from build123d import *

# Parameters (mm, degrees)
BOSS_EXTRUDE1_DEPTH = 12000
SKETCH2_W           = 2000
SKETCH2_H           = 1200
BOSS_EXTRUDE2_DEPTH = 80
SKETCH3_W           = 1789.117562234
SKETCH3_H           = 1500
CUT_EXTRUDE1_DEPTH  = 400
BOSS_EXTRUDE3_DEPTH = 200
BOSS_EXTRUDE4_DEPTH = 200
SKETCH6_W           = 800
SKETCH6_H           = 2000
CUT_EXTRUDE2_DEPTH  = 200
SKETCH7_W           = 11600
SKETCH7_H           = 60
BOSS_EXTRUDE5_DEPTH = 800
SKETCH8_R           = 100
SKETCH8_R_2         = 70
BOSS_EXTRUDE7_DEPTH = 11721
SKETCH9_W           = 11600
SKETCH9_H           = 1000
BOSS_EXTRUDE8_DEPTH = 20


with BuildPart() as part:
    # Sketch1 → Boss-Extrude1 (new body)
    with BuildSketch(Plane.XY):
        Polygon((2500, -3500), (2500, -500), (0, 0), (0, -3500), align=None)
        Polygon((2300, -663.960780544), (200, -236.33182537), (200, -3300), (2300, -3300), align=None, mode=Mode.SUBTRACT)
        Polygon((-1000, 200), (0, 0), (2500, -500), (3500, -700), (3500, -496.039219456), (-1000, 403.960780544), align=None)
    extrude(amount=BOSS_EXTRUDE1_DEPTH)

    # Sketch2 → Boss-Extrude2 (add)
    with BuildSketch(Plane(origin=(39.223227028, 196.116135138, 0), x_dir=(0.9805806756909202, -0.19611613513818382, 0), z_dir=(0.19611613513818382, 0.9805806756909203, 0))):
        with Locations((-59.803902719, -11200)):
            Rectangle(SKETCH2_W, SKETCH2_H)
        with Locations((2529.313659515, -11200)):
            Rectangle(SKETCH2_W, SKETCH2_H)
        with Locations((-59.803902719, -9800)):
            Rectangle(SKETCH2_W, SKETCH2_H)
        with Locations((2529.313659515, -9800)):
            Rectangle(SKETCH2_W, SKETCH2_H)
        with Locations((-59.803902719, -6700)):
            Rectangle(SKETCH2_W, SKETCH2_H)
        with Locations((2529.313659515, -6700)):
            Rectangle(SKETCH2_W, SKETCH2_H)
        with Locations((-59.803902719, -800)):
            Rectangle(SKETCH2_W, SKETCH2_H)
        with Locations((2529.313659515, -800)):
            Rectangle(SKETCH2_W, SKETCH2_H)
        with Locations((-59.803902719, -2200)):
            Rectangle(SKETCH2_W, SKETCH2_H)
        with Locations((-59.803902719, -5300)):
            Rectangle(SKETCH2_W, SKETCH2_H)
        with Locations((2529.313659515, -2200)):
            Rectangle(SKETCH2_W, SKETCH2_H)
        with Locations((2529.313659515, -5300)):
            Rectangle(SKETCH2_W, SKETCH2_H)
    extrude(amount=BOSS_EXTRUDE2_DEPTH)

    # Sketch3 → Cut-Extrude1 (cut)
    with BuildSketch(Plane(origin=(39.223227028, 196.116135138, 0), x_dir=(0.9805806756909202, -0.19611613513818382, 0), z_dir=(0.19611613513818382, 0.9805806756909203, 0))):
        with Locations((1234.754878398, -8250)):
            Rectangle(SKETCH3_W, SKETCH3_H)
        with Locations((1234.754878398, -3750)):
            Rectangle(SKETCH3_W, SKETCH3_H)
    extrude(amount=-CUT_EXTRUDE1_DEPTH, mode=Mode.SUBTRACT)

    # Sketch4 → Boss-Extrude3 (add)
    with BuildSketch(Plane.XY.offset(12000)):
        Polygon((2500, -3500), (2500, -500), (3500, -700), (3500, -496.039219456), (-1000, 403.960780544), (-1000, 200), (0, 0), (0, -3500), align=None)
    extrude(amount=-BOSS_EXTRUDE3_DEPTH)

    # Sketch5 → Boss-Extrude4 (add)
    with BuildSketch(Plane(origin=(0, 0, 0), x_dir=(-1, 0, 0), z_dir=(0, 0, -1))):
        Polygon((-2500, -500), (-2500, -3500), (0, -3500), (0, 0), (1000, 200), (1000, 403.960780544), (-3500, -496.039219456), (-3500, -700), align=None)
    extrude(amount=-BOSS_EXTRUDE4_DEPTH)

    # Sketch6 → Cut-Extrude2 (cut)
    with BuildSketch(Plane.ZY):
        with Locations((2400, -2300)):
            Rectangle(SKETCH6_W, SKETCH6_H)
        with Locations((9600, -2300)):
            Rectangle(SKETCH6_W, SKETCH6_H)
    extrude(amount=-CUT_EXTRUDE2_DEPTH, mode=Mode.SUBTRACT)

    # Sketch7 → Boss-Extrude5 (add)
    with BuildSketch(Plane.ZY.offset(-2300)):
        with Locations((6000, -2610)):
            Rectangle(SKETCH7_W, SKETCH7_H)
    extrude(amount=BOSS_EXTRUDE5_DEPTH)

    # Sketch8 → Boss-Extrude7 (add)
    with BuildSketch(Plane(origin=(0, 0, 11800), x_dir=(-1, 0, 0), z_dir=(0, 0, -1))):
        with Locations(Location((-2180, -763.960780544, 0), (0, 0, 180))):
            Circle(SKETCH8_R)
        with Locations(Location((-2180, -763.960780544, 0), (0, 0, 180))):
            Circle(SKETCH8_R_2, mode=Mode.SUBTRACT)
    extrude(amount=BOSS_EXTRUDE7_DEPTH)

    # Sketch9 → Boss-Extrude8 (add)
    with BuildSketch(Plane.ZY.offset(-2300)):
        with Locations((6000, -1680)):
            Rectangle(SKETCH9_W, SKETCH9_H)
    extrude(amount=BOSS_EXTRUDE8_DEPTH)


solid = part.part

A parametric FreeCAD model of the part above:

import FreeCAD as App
import Part
import Sketcher


def add_polygon(sketch, points):
    """Adds a closed chain of lines whose ends are joined by coincident constraints."""
    first, n = sketch.GeometryCount, len(points)
    for a, b in zip(points, points[1:] + points[:1]):
        sketch.addGeometry(Part.LineSegment(App.Vector(*a, 0), App.Vector(*b, 0)), False)
    for i in range(n):
        sketch.addConstraint(Sketcher.Constraint("Coincident", first + i, 2, first + (i + 1) % n, 1))

doc = App.newDocument("Part")
params = doc.addObject("Spreadsheet::Sheet", "Params")
for row, (alias, value) in enumerate([
    ("sketch1_width", "2500 mm"),
    ("sketch1_width2", "2100 mm"),
    ("sketch1_height", "3000 mm"),
    ("sketch1_height2", "3500 mm"),
    ("pad1_length", "12000 mm"),
    ("sketch2_width", "2000.000001 mm"),
    ("sketch2_height", "1200.000001 mm"),
    ("pad2_length", "80 mm"),
    ("sketch3_height", "1500.000002 mm"),
    ("pocket1_length", "400 mm"),
    ("sketch4_width", "2500 mm"),
    ("sketch4_height", "3000 mm"),
    ("sketch4_height2", "3500 mm"),
    ("pad3_length", "200 mm"),
    ("sketch5_width", "2500 mm"),
    ("sketch5_height", "3000 mm"),
    ("sketch5_height2", "3500 mm"),
    ("pad4_length", "200 mm"),
    ("sketch6_width", "2000 mm"),
    ("sketch6_height", "800 mm"),
    ("pocket2_length", "200 mm"),
    ("sketch7_width", "60 mm"),
    ("sketch7_height", "11600 mm"),
    ("pad5_length", "800 mm"),
    ("sketch8_diameter", "200 mm"),
    ("sketch8_diameter2", "140 mm"),
    ("pad6_length", "11721 mm"),
    ("sketch9_width", "1000 mm"),
    ("sketch9_height", "11600 mm"),
    ("pad7_length", "20 mm"),
], start=1):
    params.set(f"A{row}", alias)
    params.set(f"B{row}", "=" + value)
    params.setAlias(f"B{row}", alias)

body = doc.addObject("PartDesign::Body", "Body")

# Sketch on XY plane
sketch1 = body.newObject("Sketcher::SketchObject", "Sketch")
sketch1.AttachmentSupport = (doc.getObject("XY_Plane"), [""])
sketch1.MapMode = "FlatFace"
add_polygon(sketch1, [(2500, -3500), (2500, -500), (3500, -700), (3500, -496), (-1000, 404), (-1000, 200), (0, 0), (0, -3500)])  # lines 0-7
add_polygon(sketch1, [(200, -236), (2300, -664), (2300, -3300), (200, -3300)])  # lines 8-11
sketch1.addConstraint(Sketcher.Constraint("Vertical", 0))
sketch1.addConstraint(Sketcher.Constraint("Vertical", 2))
sketch1.addConstraint(Sketcher.Constraint("Vertical", 4))
sketch1.addConstraint(Sketcher.Constraint("Vertical", 6))
sketch1.addConstraint(Sketcher.Constraint("Horizontal", 7))
sketch1.addConstraint(Sketcher.Constraint("Vertical", 9))
sketch1.addConstraint(Sketcher.Constraint("Horizontal", 10))
sketch1.addConstraint(Sketcher.Constraint("Vertical", 11))
sketch1.addConstraint(Sketcher.Constraint("Coincident", 5, 2, -1, 1))
sketch1.addConstraint(Sketcher.Constraint("Parallel", 1, 3))
sketch1.addConstraint(Sketcher.Constraint("Parallel", 3, 5))
sketch1.addConstraint(Sketcher.Constraint("Equal", 2, 4))
sketch1.addConstraint(Sketcher.Constraint("Equal", 1, 5))
sketch1.addConstraint(Sketcher.Constraint("DistanceX", 7, 1, 7, 2, 2500.0))
sketch1.addConstraint(Sketcher.Constraint("DistanceX", 10, 2, 10, 1, 2100.0))
sketch1.addConstraint(Sketcher.Constraint("DistanceY", 0, 1, 0, 2, 3000.0))
sketch1.addConstraint(Sketcher.Constraint("DistanceY", 6, 2, 6, 1, 3500.0))
sketch1.addConstraint(Sketcher.Constraint("DistanceX", -1, 1, 1, 2, 3500.0))
sketch1.addConstraint(Sketcher.Constraint("DistanceX", -1, 1, 8, 2, 2300.0))
sketch1.addConstraint(Sketcher.Constraint("DistanceY", 9, 2, -1, 1, 3300.0))
sketch1.addConstraint(Sketcher.Constraint("DistanceY", 2, 1, 2, 2, 203.960781))
sketch1.addConstraint(Sketcher.Constraint("DistanceY", 9, 2, 9, 1, 2636.039219))
sketch1.addConstraint(Sketcher.Constraint("DistanceY", 11, 1, 11, 2, 3063.668175))
sketch1.setExpression("Constraints[25]", "Params.sketch1_width")
sketch1.setExpression("Constraints[26]", "Params.sketch1_width2")
sketch1.setExpression("Constraints[27]", "Params.sketch1_height")
sketch1.setExpression("Constraints[28]", "Params.sketch1_height2")
pad1 = body.newObject("PartDesign::Pad", "Pad")
pad1.Profile = sketch1
pad1.setExpression("Length", "Params.pad1_length")

# Sketch on an angled plane
sketch2 = body.newObject("Sketcher::SketchObject", "Sketch001")
sketch2.Placement = App.Placement(App.Vector(39.223227, 196.116135, 0), App.Rotation(App.Vector(0.980580676, -0.196116135, 0), App.Vector(0, 0, -1.000000001), App.Vector(0.196116135, 0.980580676, 0), "ZXY"))
add_polygon(sketch2, [(-1060, -10600), (-1060, -11800), (940, -11800), (940, -10600)])  # lines 0-3
add_polygon(sketch2, [(1529, -10600), (1529, -11800), (3529, -11800), (3529, -10600)])  # lines 4-7
add_polygon(sketch2, [(-1060, -9200), (-1060, -10400), (940, -10400), (940, -9200)])  # lines 8-11
add_polygon(sketch2, [(1529, -9200), (1529, -10400), (3529, -10400), (3529, -9200)])  # lines 12-15
add_polygon(sketch2, [(-1060, -6100), (-1060, -7300), (940, -7300), (940, -6100)])  # lines 16-19
add_polygon(sketch2, [(1529, -6100), (1529, -7300), (3529, -7300), (3529, -6100)])  # lines 20-23
add_polygon(sketch2, [(-1060, -200), (-1060, -1400), (940, -1400), (940, -200)])  # lines 24-27
add_polygon(sketch2, [(1529, -200), (1529, -1400), (3529, -1400), (3529, -200)])  # lines 28-31
add_polygon(sketch2, [(-1060, -1600), (-1060, -2800), (940, -2800), (940, -1600)])  # lines 32-35
add_polygon(sketch2, [(-1060, -4700), (-1060, -5900), (940, -5900), (940, -4700)])  # lines 36-39
add_polygon(sketch2, [(1529, -1600), (1529, -2800), (3529, -2800), (3529, -1600)])  # lines 40-43
add_polygon(sketch2, [(1529, -4700), (1529, -5900), (3529, -5900), (3529, -4700)])  # lines 44-47
sketch2.addConstraint(Sketcher.Constraint("Vertical", 0))
sketch2.addConstraint(Sketcher.Constraint("Horizontal", 1))
sketch2.addConstraint(Sketcher.Constraint("Vertical", 2))
sketch2.addConstraint(Sketcher.Constraint("Horizontal", 3))
sketch2.addConstraint(Sketcher.Constraint("Vertical", 4))
sketch2.addConstraint(Sketcher.Constraint("Horizontal", 5))
sketch2.addConstraint(Sketcher.Constraint("Vertical", 6))
sketch2.addConstraint(Sketcher.Constraint("Horizontal", 7))
sketch2.addConstraint(Sketcher.Constraint("Vertical", 8))
sketch2.addConstraint(Sketcher.Constraint("Horizontal", 9))
sketch2.addConstraint(Sketcher.Constraint("Vertical", 10))
sketch2.addConstraint(Sketcher.Constraint("Horizontal", 11))
sketch2.addConstraint(Sketcher.Constraint("Vertical", 12))
sketch2.addConstraint(Sketcher.Constraint("Horizontal", 13))
sketch2.addConstraint(Sketcher.Constraint("Vertical", 14))
sketch2.addConstraint(Sketcher.Constraint("Horizontal", 15))
sketch2.addConstraint(Sketcher.Constraint("Vertical", 16))
sketch2.addConstraint(Sketcher.Constraint("Horizontal", 17))
sketch2.addConstraint(Sketcher.Constraint("Vertical", 18))
sketch2.addConstraint(Sketcher.Constraint("Horizontal", 19))
sketch2.addConstraint(Sketcher.Constraint("Vertical", 20))
sketch2.addConstraint(Sketcher.Constraint("Horizontal", 21))
sketch2.addConstraint(Sketcher.Constraint("Vertical", 22))
sketch2.addConstraint(Sketcher.Constraint("Horizontal", 23))
sketch2.addConstraint(Sketcher.Constraint("Vertical", 24))
sketch2.addConstraint(Sketcher.Constraint("Horizontal", 25))
sketch2.addConstraint(Sketcher.Constraint("Vertical", 26))
sketch2.addConstraint(Sketcher.Constraint("Horizontal", 27))
sketch2.addConstraint(Sketcher.Constraint("Vertical", 28))
sketch2.addConstraint(Sketcher.Constraint("Horizontal", 29))
sketch2.addConstraint(Sketcher.Constraint("Vertical", 30))
sketch2.addConstraint(Sketcher.Constraint("Horizontal", 31))
sketch2.addConstraint(Sketcher.Constraint("Vertical", 32))
sketch2.addConstraint(Sketcher.Constraint("Horizontal", 33))
sketch2.addConstraint(Sketcher.Constraint("Vertical", 34))
sketch2.addConstraint(Sketcher.Constraint("Horizontal", 35))
sketch2.addConstraint(Sketcher.Constraint("Vertical", 36))
sketch2.addConstraint(Sketcher.Constraint("Horizontal", 37))
sketch2.addConstraint(Sketcher.Constraint("Vertical", 38))
sketch2.addConstraint(Sketcher.Constraint("Horizontal", 39))
sketch2.addConstraint(Sketcher.Constraint("Vertical", 40))
sketch2.addConstraint(Sketcher.Constraint("Horizontal", 41))
sketch2.addConstraint(Sketcher.Constraint("Vertical", 42))
sketch2.addConstraint(Sketcher.Constraint("Horizontal", 43))
sketch2.addConstraint(Sketcher.Constraint("Vertical", 44))
sketch2.addConstraint(Sketcher.Constraint("Horizontal", 45))
sketch2.addConstraint(Sketcher.Constraint("Vertical", 46))
sketch2.addConstraint(Sketcher.Constraint("Horizontal", 47))
sketch2.addConstraint(Sketcher.Constraint("Horizontal", 1, 2, 4, 2))
sketch2.addConstraint(Sketcher.Constraint("Horizontal", 3, 2, 6, 2))
sketch2.addConstraint(Sketcher.Constraint("Horizontal", 9, 2, 12, 2))
sketch2.addConstraint(Sketcher.Constraint("Horizontal", 11, 2, 14, 2))
sketch2.addConstraint(Sketcher.Constraint("Horizontal", 17, 2, 20, 2))
sketch2.addConstraint(Sketcher.Constraint("Horizontal", 19, 2, 22, 2))
sketch2.addConstraint(Sketcher.Constraint("Horizontal", 25, 2, 28, 2))
sketch2.addConstraint(Sketcher.Constraint("Horizontal", 27, 2, 30, 2))
sketch2.addConstraint(Sketcher.Constraint("Horizontal", 33, 2, 40, 2))
sketch2.addConstraint(Sketcher.Constraint("Horizontal", 35, 2, 42, 2))
sketch2.addConstraint(Sketcher.Constraint("Horizontal", 37, 2, 44, 2))
sketch2.addConstraint(Sketcher.Constraint("Horizontal", 39, 2, 46, 2))
sketch2.addConstraint(Sketcher.Constraint("Vertical", 3, 2, 8, 2))
sketch2.addConstraint(Sketcher.Constraint("Vertical", 2, 2, 9, 2))
sketch2.addConstraint(Sketcher.Constraint("Vertical", 7, 2, 12, 2))
sketch2.addConstraint(Sketcher.Constraint("Vertical", 6, 2, 13, 2))
sketch2.addConstraint(Sketcher.Constraint("Vertical", 11, 2, 16, 2))
sketch2.addConstraint(Sketcher.Constraint("Vertical", 10, 2, 17, 2))
sketch2.addConstraint(Sketcher.Constraint("Vertical", 15, 2, 20, 2))
sketch2.addConstraint(Sketcher.Constraint("Vertical", 14, 2, 21, 2))
sketch2.addConstraint(Sketcher.Constraint("Vertical", 19, 2, 24, 2))
sketch2.addConstraint(Sketcher.Constraint("Vertical", 18, 2, 25, 2))
sketch2.addConstraint(Sketcher.Constraint("Vertical", 23, 2, 28, 2))
sketch2.addConstraint(Sketcher.Constraint("Vertical", 22, 2, 29, 2))
sketch2.addConstraint(Sketcher.Constraint("Vertical", 27, 2, 32, 2))
sketch2.addConstraint(Sketcher.Constraint("Vertical", 26, 2, 33, 2))
sketch2.addConstraint(Sketcher.Constraint("Vertical", 35, 2, 36, 2))
sketch2.addConstraint(Sketcher.Constraint("Vertical", 34, 2, 37, 2))
sketch2.addConstraint(Sketcher.Constraint("Vertical", 31, 2, 40, 2))
sketch2.addConstraint(Sketcher.Constraint("Vertical", 30, 2, 41, 2))
sketch2.addConstraint(Sketcher.Constraint("Vertical", 43, 2, 44, 2))
sketch2.addConstraint(Sketcher.Constraint("Vertical", 42, 2, 45, 2))
sketch2.addConstraint(Sketcher.Constraint("Equal", 3, 5))
sketch2.addConstraint(Sketcher.Constraint("Equal", 6, 8))
sketch2.addConstraint(Sketcher.Constraint("Equal", 14, 16))
sketch2.addConstraint(Sketcher.Constraint("Equal", 22, 24))
sketch2.addConstraint(Sketcher.Constraint("Equal", 30, 32))
sketch2.addConstraint(Sketcher.Constraint("Equal", 34, 36))
sketch2.addConstraint(Sketcher.Constraint("DistanceX", 1, 1, 1, 2, 2000.000001))
sketch2.addConstraint(Sketcher.Constraint("DistanceY", 0, 2, 0, 1, 1200.000001))
sketch2.addConstraint(Sketcher.Constraint("DistanceY", 24, 2, -1, 1, 1400.000002))
sketch2.addConstraint(Sketcher.Constraint("DistanceY", 34, 2, -1, 1, 1600.000002))
sketch2.addConstraint(Sketcher.Constraint("DistanceY", 3, 2, 8, 2, 200.0))
sketch2.addConstraint(Sketcher.Constraint("DistanceY", 19, 2, 36, 2, 200.0))
sketch2.addConstraint(Sketcher.Constraint("DistanceY", 2, 2, -1, 1, 10600.000012))
sketch2.addConstraint(Sketcher.Constraint("DistanceX", -1, 1, 4, 2, 1529.31366))
sketch2.addConstraint(Sketcher.Constraint("DistanceY", 16, 2, -1, 1, 7300.000008))
sketch2.addConstraint(Sketcher.Constraint("DistanceX", 0, 2, -1, 1, 1059.803903))
sketch2.setExpression("Constraints[134]", "Params.sketch2_width")
sketch2.setExpression("Constraints[135]", "Params.sketch2_height")
pad2 = body.newObject("PartDesign::Pad", "Pad001")
pad2.Profile = sketch2
pad2.setExpression("Length", "Params.pad2_length")

# Sketch on an angled plane
sketch3 = body.newObject("Sketcher::SketchObject", "Sketch002")
sketch3.Placement = App.Placement(App.Vector(39.223227, 196.116135, 0), App.Rotation(App.Vector(0.980580676, -0.196116135, 0), App.Vector(0, 0, -1.000000001), App.Vector(0.196116135, 0.980580676, 0), "ZXY"))
add_polygon(sketch3, [(340, -7500), (340, -9000), (2129, -9000), (2129, -7500)])  # lines 0-3
add_polygon(sketch3, [(340, -3000), (340, -4500), (2129, -4500), (2129, -3000)])  # lines 4-7
sketch3.addConstraint(Sketcher.Constraint("Vertical", 0))
sketch3.addConstraint(Sketcher.Constraint("Horizontal", 1))
sketch3.addConstraint(Sketcher.Constraint("Vertical", 2))
sketch3.addConstraint(Sketcher.Constraint("Horizontal", 3))
sketch3.addConstraint(Sketcher.Constraint("Vertical", 4))
sketch3.addConstraint(Sketcher.Constraint("Horizontal", 5))
sketch3.addConstraint(Sketcher.Constraint("Vertical", 6))
sketch3.addConstraint(Sketcher.Constraint("Horizontal", 7))
sketch3.addConstraint(Sketcher.Constraint("Vertical", 3, 2, 4, 2))
sketch3.addConstraint(Sketcher.Constraint("Vertical", 2, 2, 5, 2))
sketch3.addConstraint(Sketcher.Constraint("Equal", 2, 4))
sketch3.addConstraint(Sketcher.Constraint("DistanceY", 0, 2, 0, 1, 1500.000002))
sketch3.addConstraint(Sketcher.Constraint("DistanceX", 1, 1, 1, 2, 1789.117563))
sketch3.addConstraint(Sketcher.Constraint("DistanceY", 0, 2, -1, 1, 9000.00001))
sketch3.addConstraint(Sketcher.Constraint("DistanceX", -1, 1, 1, 2, 2129.313661))
sketch3.addConstraint(Sketcher.Constraint("DistanceY", 4, 2, -1, 1, 4500.000005))
sketch3.setExpression("Constraints[19]", "Params.sketch3_height")
pocket1 = body.newObject("PartDesign::Pocket", "Pocket")
pocket1.Profile = sketch3
pocket1.setExpression("Length", "Params.pocket1_length")

# Sketch on XY plane
sketch4 = body.newObject("Sketcher::SketchObject", "Sketch003")
sketch4.AttachmentSupport = (doc.getObject("XY_Plane"), [""])
sketch4.MapMode = "FlatFace"
sketch4.AttachmentOffset = App.Placement(App.Vector(0, 0, 12000), App.Rotation())
add_polygon(sketch4, [(2500, -3500), (2500, -500), (3500, -700), (3500, -496), (-1000, 404), (-1000, 200), (0, 0), (0, -3500)])  # lines 0-7
sketch4.addConstraint(Sketcher.Constraint("Vertical", 0))
sketch4.addConstraint(Sketcher.Constraint("Vertical", 2))
sketch4.addConstraint(Sketcher.Constraint("Vertical", 4))
sketch4.addConstraint(Sketcher.Constraint("Vertical", 6))
sketch4.addConstraint(Sketcher.Constraint("Horizontal", 7))
sketch4.addConstraint(Sketcher.Constraint("Coincident", 5, 2, -1, 1))
sketch4.addConstraint(Sketcher.Constraint("Parallel", 1, 3))
sketch4.addConstraint(Sketcher.Constraint("Parallel", 3, 5))
sketch4.addConstraint(Sketcher.Constraint("Equal", 2, 4))
sketch4.addConstraint(Sketcher.Constraint("Equal", 1, 5))
sketch4.addConstraint(Sketcher.Constraint("DistanceX", 7, 1, 7, 2, 2500.0))
sketch4.addConstraint(Sketcher.Constraint("DistanceY", 0, 1, 0, 2, 3000.0))
sketch4.addConstraint(Sketcher.Constraint("DistanceY", 6, 2, 6, 1, 3500.0))
sketch4.addConstraint(Sketcher.Constraint("DistanceX", -1, 1, 1, 2, 3500.0))
sketch4.addConstraint(Sketcher.Constraint("DistanceY", 2, 1, 2, 2, 203.960781))
sketch4.setExpression("Constraints[18]", "Params.sketch4_width")
sketch4.setExpression("Constraints[19]", "Params.sketch4_height")
sketch4.setExpression("Constraints[20]", "Params.sketch4_height2")
pad3 = body.newObject("PartDesign::Pad", "Pad002")
pad3.Profile = sketch4
pad3.setExpression("Length", "Params.pad3_length")
pad3.Reversed = True

# Sketch on XY plane
sketch5 = body.newObject("Sketcher::SketchObject", "Sketch004")
sketch5.AttachmentSupport = (doc.getObject("XY_Plane"), [""])
sketch5.MapMode = "FlatFace"
add_polygon(sketch5, [(2500, -500), (2500, -3500), (0, -3500), (0, 0), (-1000, 200), (-1000, 404), (3500, -496), (3500, -700)])  # lines 0-7
sketch5.addConstraint(Sketcher.Constraint("Vertical", 0))
sketch5.addConstraint(Sketcher.Constraint("Horizontal", 1))
sketch5.addConstraint(Sketcher.Constraint("Vertical", 2))
sketch5.addConstraint(Sketcher.Constraint("Vertical", 4))
sketch5.addConstraint(Sketcher.Constraint("Vertical", 6))
sketch5.addConstraint(Sketcher.Constraint("Coincident", 2, 2, -1, 1))
sketch5.addConstraint(Sketcher.Constraint("Parallel", 3, 5))
sketch5.addConstraint(Sketcher.Constraint("Parallel", 5, 7))
sketch5.addConstraint(Sketcher.Constraint("Equal", 4, 6))
sketch5.addConstraint(Sketcher.Constraint("Equal", 3, 7))
sketch5.addConstraint(Sketcher.Constraint("DistanceX", 1, 2, 1, 1, 2500.0))
sketch5.addConstraint(Sketcher.Constraint("DistanceY", 0, 2, 0, 1, 3000.0))
sketch5.addConstraint(Sketcher.Constraint("DistanceY", 2, 1, 2, 2, 3500.0))
sketch5.addConstraint(Sketcher.Constraint("DistanceX", 3, 2, -1, 1, 1000.0))
sketch5.addConstraint(Sketcher.Constraint("DistanceY", 4, 1, 4, 2, 203.960781))
sketch5.setExpression("Constraints[18]", "Params.sketch5_width")
sketch5.setExpression("Constraints[19]", "Params.sketch5_height")
sketch5.setExpression("Constraints[20]", "Params.sketch5_height2")
pad4 = body.newObject("PartDesign::Pad", "Pad003")
pad4.Profile = sketch5
pad4.setExpression("Length", "Params.pad4_length")

# Sketch on YZ plane
sketch6 = body.newObject("Sketcher::SketchObject", "Sketch005")
sketch6.AttachmentSupport = (doc.getObject("YZ_Plane"), [""])
sketch6.MapMode = "FlatFace"
add_polygon(sketch6, [(-1300, 2000), (-3300, 2000), (-3300, 2800), (-1300, 2800)])  # lines 0-3
add_polygon(sketch6, [(-1300, 9200), (-3300, 9200), (-3300, 10000), (-1300, 10000)])  # lines 4-7
sketch6.addConstraint(Sketcher.Constraint("Horizontal", 0))
sketch6.addConstraint(Sketcher.Constraint("Vertical", 1))
sketch6.addConstraint(Sketcher.Constraint("Horizontal", 2))
sketch6.addConstraint(Sketcher.Constraint("Vertical", 3))
sketch6.addConstraint(Sketcher.Constraint("Horizontal", 4))
sketch6.addConstraint(Sketcher.Constraint("Vertical", 5))
sketch6.addConstraint(Sketcher.Constraint("Horizontal", 6))
sketch6.addConstraint(Sketcher.Constraint("Vertical", 7))
sketch6.addConstraint(Sketcher.Constraint("Vertical", 1, 2, 4, 2))
sketch6.addConstraint(Sketcher.Constraint("Vertical", 3, 2, 6, 2))
sketch6.addConstraint(Sketcher.Constraint("Equal", 3, 5))
sketch6.addConstraint(Sketcher.Constraint("DistanceX", 0, 2, 0, 1, 2000.0))
sketch6.addConstraint(Sketcher.Constraint("DistanceY", 1, 1, 1, 2, 800.0))
sketch6.addConstraint(Sketcher.Constraint("DistanceX", 0, 2, -1, 1, 3300.0))
sketch6.addConstraint(Sketcher.Constraint("DistanceY", -1, 1, 0, 2, 2000.0))
sketch6.addConstraint(Sketcher.Constraint("DistanceY", -1, 1, 4, 2, 9200.0))
sketch6.setExpression("Constraints[19]", "Params.sketch6_width")
sketch6.setExpression("Constraints[20]", "Params.sketch6_height")
pocket2 = body.newObject("PartDesign::Pocket", "Pocket001")
pocket2.Profile = sketch6
pocket2.setExpression("Length", "Params.pocket2_length")
pocket2.Reversed = True

# Sketch on YZ plane
sketch7 = body.newObject("Sketcher::SketchObject", "Sketch006")
sketch7.AttachmentSupport = (doc.getObject("YZ_Plane"), [""])
sketch7.MapMode = "FlatFace"
sketch7.AttachmentOffset = App.Placement(App.Vector(0, 0, 2300), App.Rotation())
add_polygon(sketch7, [(-2580, 200), (-2640, 200), (-2640, 11800), (-2580, 11800)])  # lines 0-3
sketch7.addConstraint(Sketcher.Constraint("Horizontal", 0))
sketch7.addConstraint(Sketcher.Constraint("Vertical", 1))
sketch7.addConstraint(Sketcher.Constraint("Horizontal", 2))
sketch7.addConstraint(Sketcher.Constraint("Vertical", 3))
sketch7.addConstraint(Sketcher.Constraint("DistanceX", 0, 2, 0, 1, 60.0))
sketch7.addConstraint(Sketcher.Constraint("DistanceY", 1, 1, 1, 2, 11600.0))
sketch7.addConstraint(Sketcher.Constraint("DistanceX", 0, 2, -1, 1, 2640.0))
sketch7.addConstraint(Sketcher.Constraint("DistanceY", -1, 1, 0, 2, 200.0))
sketch7.setExpression("Constraints[8]", "Params.sketch7_width")
sketch7.setExpression("Constraints[9]", "Params.sketch7_height")
pad5 = body.newObject("PartDesign::Pad", "Pad004")
pad5.Profile = sketch7
pad5.setExpression("Length", "Params.pad5_length")
pad5.Reversed = True

# Sketch on XY plane
sketch8 = body.newObject("Sketcher::SketchObject", "Sketch007")
sketch8.AttachmentSupport = (doc.getObject("XY_Plane"), [""])
sketch8.MapMode = "FlatFace"
sketch8.AttachmentOffset = App.Placement(App.Vector(0, 0, 11800), App.Rotation())
sketch8.addGeometry(Part.Circle(App.Vector(2180, -764, 0), App.Vector(0, 0, 1), 100), False)
sketch8.addGeometry(Part.Circle(App.Vector(2180, -764, 0), App.Vector(0, 0, 1), 70), False)
sketch8.addConstraint(Sketcher.Constraint("Coincident", 1, 3, 0, 3))
sketch8.addConstraint(Sketcher.Constraint("Diameter", 0, 200.0))
sketch8.addConstraint(Sketcher.Constraint("Diameter", 1, 140.0))
sketch8.addConstraint(Sketcher.Constraint("DistanceX", -1, 1, 0, 3, 2180.0))
sketch8.addConstraint(Sketcher.Constraint("DistanceY", 0, 3, -1, 1, 763.960781))
sketch8.setExpression("Constraints[1]", "Params.sketch8_diameter")
sketch8.setExpression("Constraints[2]", "Params.sketch8_diameter2")
pad6 = body.newObject("PartDesign::Pad", "Pad005")
pad6.Profile = sketch8
pad6.setExpression("Length", "Params.pad6_length")
pad6.Reversed = True

# Sketch on YZ plane
sketch9 = body.newObject("Sketcher::SketchObject", "Sketch008")
sketch9.AttachmentSupport = (doc.getObject("YZ_Plane"), [""])
sketch9.MapMode = "FlatFace"
sketch9.AttachmentOffset = App.Placement(App.Vector(0, 0, 2300), App.Rotation())
add_polygon(sketch9, [(-1180, 200), (-2180, 200), (-2180, 11800), (-1180, 11800)])  # lines 0-3
sketch9.addConstraint(Sketcher.Constraint("Horizontal", 0))
sketch9.addConstraint(Sketcher.Constraint("Vertical", 1))
sketch9.addConstraint(Sketcher.Constraint("Horizontal", 2))
sketch9.addConstraint(Sketcher.Constraint("Vertical", 3))
sketch9.addConstraint(Sketcher.Constraint("DistanceX", 0, 2, 0, 1, 1000.0))
sketch9.addConstraint(Sketcher.Constraint("DistanceY", 1, 1, 1, 2, 11600.0))
sketch9.addConstraint(Sketcher.Constraint("DistanceX", 0, 2, -1, 1, 2180.0))
sketch9.addConstraint(Sketcher.Constraint("DistanceY", -1, 1, 0, 2, 200.0))
sketch9.setExpression("Constraints[8]", "Params.sketch9_width")
sketch9.setExpression("Constraints[9]", "Params.sketch9_height")
pad7 = body.newObject("PartDesign::Pad", "Pad006")
pad7.Profile = sketch9
pad7.setExpression("Length", "Params.pad7_length")
pad7.Reversed = True

doc.recompute()
